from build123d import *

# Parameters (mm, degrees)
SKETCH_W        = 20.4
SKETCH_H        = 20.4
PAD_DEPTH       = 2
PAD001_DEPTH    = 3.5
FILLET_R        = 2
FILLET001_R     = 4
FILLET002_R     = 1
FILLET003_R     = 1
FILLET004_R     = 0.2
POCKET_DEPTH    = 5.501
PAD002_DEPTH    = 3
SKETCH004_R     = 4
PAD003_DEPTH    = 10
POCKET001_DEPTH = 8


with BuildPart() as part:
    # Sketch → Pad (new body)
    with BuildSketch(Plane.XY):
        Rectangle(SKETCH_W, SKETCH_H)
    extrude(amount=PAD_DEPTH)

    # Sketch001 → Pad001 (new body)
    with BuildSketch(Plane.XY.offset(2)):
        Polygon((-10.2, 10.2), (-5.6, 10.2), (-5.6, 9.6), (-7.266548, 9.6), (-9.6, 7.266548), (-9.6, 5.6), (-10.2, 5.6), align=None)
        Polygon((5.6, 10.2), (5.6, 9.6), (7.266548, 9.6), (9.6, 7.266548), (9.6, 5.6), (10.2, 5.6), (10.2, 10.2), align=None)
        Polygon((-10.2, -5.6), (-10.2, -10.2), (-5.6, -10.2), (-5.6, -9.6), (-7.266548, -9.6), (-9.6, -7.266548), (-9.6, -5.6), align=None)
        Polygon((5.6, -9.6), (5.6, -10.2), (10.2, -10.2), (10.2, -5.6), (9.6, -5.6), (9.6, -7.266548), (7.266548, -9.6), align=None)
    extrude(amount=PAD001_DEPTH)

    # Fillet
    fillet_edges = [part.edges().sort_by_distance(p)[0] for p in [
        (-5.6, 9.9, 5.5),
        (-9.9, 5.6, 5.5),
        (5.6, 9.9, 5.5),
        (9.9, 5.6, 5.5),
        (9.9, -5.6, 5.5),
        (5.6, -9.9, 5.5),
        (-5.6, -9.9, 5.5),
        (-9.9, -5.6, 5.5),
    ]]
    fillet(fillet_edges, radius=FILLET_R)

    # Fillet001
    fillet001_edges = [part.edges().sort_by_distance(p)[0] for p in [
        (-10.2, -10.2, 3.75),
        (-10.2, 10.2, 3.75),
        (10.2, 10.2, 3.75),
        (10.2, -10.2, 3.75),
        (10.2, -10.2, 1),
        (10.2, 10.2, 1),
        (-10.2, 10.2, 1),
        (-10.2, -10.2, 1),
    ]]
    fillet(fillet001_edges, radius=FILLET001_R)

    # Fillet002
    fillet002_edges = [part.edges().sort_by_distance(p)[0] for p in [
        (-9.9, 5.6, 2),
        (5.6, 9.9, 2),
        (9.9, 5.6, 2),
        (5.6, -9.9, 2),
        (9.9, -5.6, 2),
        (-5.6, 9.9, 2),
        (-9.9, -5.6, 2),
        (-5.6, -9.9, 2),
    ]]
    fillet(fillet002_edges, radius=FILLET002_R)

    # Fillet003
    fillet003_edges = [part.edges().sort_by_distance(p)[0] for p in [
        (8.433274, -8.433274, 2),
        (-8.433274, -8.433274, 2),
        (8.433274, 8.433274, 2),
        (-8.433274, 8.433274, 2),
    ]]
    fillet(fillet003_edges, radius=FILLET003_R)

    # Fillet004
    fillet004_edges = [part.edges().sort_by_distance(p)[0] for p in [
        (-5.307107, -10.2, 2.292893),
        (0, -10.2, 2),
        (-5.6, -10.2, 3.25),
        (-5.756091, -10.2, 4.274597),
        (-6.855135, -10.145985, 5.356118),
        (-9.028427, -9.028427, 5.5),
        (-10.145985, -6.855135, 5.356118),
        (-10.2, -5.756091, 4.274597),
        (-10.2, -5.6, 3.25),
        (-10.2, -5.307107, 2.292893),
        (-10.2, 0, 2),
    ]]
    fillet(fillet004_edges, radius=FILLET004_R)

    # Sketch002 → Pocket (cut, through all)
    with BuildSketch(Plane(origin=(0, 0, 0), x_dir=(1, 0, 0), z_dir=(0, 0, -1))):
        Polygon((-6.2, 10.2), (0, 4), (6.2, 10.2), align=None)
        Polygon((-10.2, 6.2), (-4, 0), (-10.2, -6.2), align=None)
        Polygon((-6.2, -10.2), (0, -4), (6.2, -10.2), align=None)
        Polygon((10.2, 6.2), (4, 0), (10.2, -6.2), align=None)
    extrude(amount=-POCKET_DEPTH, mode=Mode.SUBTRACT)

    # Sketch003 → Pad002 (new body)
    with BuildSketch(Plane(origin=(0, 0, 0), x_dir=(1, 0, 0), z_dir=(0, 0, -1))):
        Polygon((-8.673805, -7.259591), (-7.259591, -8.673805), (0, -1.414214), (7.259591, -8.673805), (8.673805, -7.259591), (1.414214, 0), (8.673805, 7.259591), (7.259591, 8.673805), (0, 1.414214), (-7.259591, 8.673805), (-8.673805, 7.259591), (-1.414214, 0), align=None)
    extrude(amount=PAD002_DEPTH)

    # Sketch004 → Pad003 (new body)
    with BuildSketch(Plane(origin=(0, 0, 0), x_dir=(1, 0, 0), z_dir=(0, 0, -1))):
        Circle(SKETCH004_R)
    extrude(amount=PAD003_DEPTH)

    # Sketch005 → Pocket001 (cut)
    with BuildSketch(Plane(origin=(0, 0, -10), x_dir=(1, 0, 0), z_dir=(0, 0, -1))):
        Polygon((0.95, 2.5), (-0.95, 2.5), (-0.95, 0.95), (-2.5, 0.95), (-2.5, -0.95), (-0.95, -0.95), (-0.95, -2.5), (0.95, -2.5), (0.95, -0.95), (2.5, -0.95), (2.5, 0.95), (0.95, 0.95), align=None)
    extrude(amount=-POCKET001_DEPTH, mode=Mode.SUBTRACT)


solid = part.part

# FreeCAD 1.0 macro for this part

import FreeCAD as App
import Part
import Sketcher

V = App.Vector
Q = App.Units.Quantity


def edges_at(feature, points):
    """Names of the edges that pass closest to the given points."""
    edges = feature.Shape.Edges
    near = lambda p: min(range(len(edges)), key=lambda i: edges[i].distToShape(Part.Vertex(*p))[0])
    return sorted({f"Edge{near(p) + 1}" for p in points})

doc = App.newDocument("Part")
body = doc.addObject("PartDesign::Body", "Body")

# Sketch on XY plane
sketch1 = doc.addObject("Sketcher::SketchObject", "Sketch")
body.addObject(sketch1)
sketch1.AttachmentSupport = (doc.XY_Plane, [""])
sketch1.MapMode = "FlatFace"
sketch1.addGeometry([
    Part.LineSegment(V(-10, 10, 0), V(-10, -10, 0)),
    Part.LineSegment(V(-10, -10, 0), V(10, -10, 0)),
    Part.LineSegment(V(10, -10, 0), V(10, 10, 0)),
    Part.LineSegment(V(10, 10, 0), V(-10, 10, 0)),
], False)
sketch1.addConstraint([
    Sketcher.Constraint("Coincident", 0, 2, 1, 1),
    Sketcher.Constraint("Coincident", 1, 2, 2, 1),
    Sketcher.Constraint("Coincident", 2, 2, 3, 1),
    Sketcher.Constraint("Coincident", 3, 2, 0, 1),
    Sketcher.Constraint("Vertical", 0),
    Sketcher.Constraint("Horizontal", 1),
    Sketcher.Constraint("Vertical", 2),
    Sketcher.Constraint("Horizontal", 3),
    Sketcher.Constraint("Symmetric", 0, 2, 2, 2, -1, 1),
    Sketcher.Constraint("Equal", 3, 0),
    Sketcher.Constraint("DistanceX", 1, 1, 1, 2, Q("20.4 mm")),
])
pad1 = doc.addObject("PartDesign::Pad", "Pad")
body.addObject(pad1)
pad1.Profile = sketch1
pad1.Length = 2

# Sketch on XY plane
sketch2 = doc.addObject("Sketcher::SketchObject", "Sketch001")
body.addObject(sketch2)
sketch2.AttachmentSupport = (doc.XY_Plane, [""])
sketch2.MapMode = "FlatFace"
sketch2.AttachmentOffset = App.Placement(V(0, 0, 2), App.Rotation())
sketch2.addGeometry([
    Part.LineSegment(V(-5.6, 10.2, 0), V(-10.2, 10.2, 0)),  # 0
    Part.LineSegment(V(-10.2, 10.2, 0), V(-10.2, 5.6, 0)),  # 1
    Part.LineSegment(V(-10.2, 5.6, 0), V(-9.6, 5.6, 0)),  # 2
    Part.LineSegment(V(-9.6, 5.6, 0), V(-9.6, 7.3, 0)),  # 3
    Part.LineSegment(V(-9.6, 7.3, 0), V(-7.3, 9.6, 0)),  # 4
    Part.LineSegment(V(-7.3, 9.6, 0), V(-5.6, 9.6, 0)),  # 5
    Part.LineSegment(V(-5.6, 9.6, 0), V(-5.6, 10.2, 0)),  # 6
    Part.LineSegment(V(5.6, 10.2, 0), V(5.6, 9.6, 0)),  # 7
    Part.LineSegment(V(5.6, 9.6, 0), V(7.3, 9.6, 0)),  # 8
    Part.LineSegment(V(7.3, 9.6, 0), V(9.6, 7.3, 0)),  # 9
    Part.LineSegment(V(9.6, 7.3, 0), V(9.6, 5.6, 0)),  # 10
    Part.LineSegment(V(9.6, 5.6, 0), V(10.2, 5.6, 0)),  # 11
    Part.LineSegment(V(10.2, 5.6, 0), V(10.2, 10.2, 0)),  # 12
    Part.LineSegment(V(10.2, 10.2, 0), V(5.6, 10.2, 0)),  # 13
    Part.LineSegment(V(-10.2, -5.6, 0), V(-10.2, -10.2, 0)),  # 14
    Part.LineSegment(V(-10.2, -10.2, 0), V(-5.6, -10.2, 0)),  # 15
    Part.LineSegment(V(-5.6, -10.2, 0), V(-5.6, -9.6, 0)),  # 16
    Part.LineSegment(V(-5.6, -9.6, 0), V(-7.3, -9.6, 0)),  # 17
    Part.LineSegment(V(-7.3, -9.6, 0), V(-9.6, -7.3, 0)),  # 18
    Part.LineSegment(V(-9.6, -7.3, 0), V(-9.6, -5.6, 0)),  # 19
    Part.LineSegment(V(-9.6, -5.6, 0), V(-10.2, -5.6, 0)),  # 20
    Part.LineSegment(V(5.6, -9.6, 0), V(5.6, -10.2, 0)),  # 21
    Part.LineSegment(V(5.6, -10.2, 0), V(10.2, -10.2, 0)),  # 22
    Part.LineSegment(V(10.2, -10.2, 0), V(10.2, -5.6, 0)),  # 23
    Part.LineSegment(V(10.2, -5.6, 0), V(9.6, -5.6, 0)),  # 24
    Part.LineSegment(V(9.6, -5.6, 0), V(9.6, -7.3, 0)),  # 25
    Part.LineSegment(V(9.6, -7.3, 0), V(7.3, -9.6, 0)),  # 26
    Part.LineSegment(V(7.3, -9.6, 0), V(5.6, -9.6, 0)),  # 27
], False)
sketch2.addConstraint([
    Sketcher.Constraint("Coincident", 0, 2, 1, 1),
    Sketcher.Constraint("Coincident", 1, 2, 2, 1),
    Sketcher.Constraint("Coincident", 2, 2, 3, 1),
    Sketcher.Constraint("Coincident", 3, 2, 4, 1),
    Sketcher.Constraint("Coincident", 4, 2, 5, 1),
    Sketcher.Constraint("Coincident", 5, 2, 6, 1),
    Sketcher.Constraint("Coincident", 6, 2, 0, 1),
    Sketcher.Constraint("Coincident", 7, 2, 8, 1),
    Sketcher.Constraint("Coincident", 8, 2, 9, 1),
    Sketcher.Constraint("Coincident", 9, 2, 10, 1),
    Sketcher.Constraint("Coincident", 10, 2, 11, 1),
    Sketcher.Constraint("Coincident", 11, 2, 12, 1),
    Sketcher.Constraint("Coincident", 12, 2, 13, 1),
    Sketcher.Constraint("Coincident", 13, 2, 7, 1),
    Sketcher.Constraint("Coincident", 14, 2, 15, 1),
    Sketcher.Constraint("Coincident", 15, 2, 16, 1),
    Sketcher.Constraint("Coincident", 16, 2, 17, 1),
    Sketcher.Constraint("Coincident", 17, 2, 18, 1),
    Sketcher.Constraint("Coincident", 18, 2, 19, 1),
    Sketcher.Constraint("Coincident", 19, 2, 20, 1),
    Sketcher.Constraint("Coincident", 20, 2, 14, 1),
    Sketcher.Constraint("Coincident", 21, 2, 22, 1),
    Sketcher.Constraint("Coincident", 22, 2, 23, 1),
    Sketcher.Constraint("Coincident", 23, 2, 24, 1),
    Sketcher.Constraint("Coincident", 24, 2, 25, 1),
    Sketcher.Constraint("Coincident", 25, 2, 26, 1),
    Sketcher.Constraint("Coincident", 26, 2, 27, 1),
    Sketcher.Constraint("Coincident", 27, 2, 21, 1),
    Sketcher.Constraint("Horizontal", 0),
    Sketcher.Constraint("Vertical", 1),
    Sketcher.Constraint("Horizontal", 2),
    Sketcher.Constraint("Vertical", 3),
    Sketcher.Constraint("Horizontal", 5),
    Sketcher.Constraint("Vertical", 6),
    Sketcher.Constraint("Vertical", 7),
    Sketcher.Constraint("Horizontal", 8),
    Sketcher.Constraint("Vertical", 10),
    Sketcher.Constraint("Horizontal", 11),
    Sketcher.Constraint("Vertical", 12),
    Sketcher.Constraint("Horizontal", 13),
    Sketcher.Constraint("Vertical", 14),
    Sketcher.Constraint("Horizontal", 15),
    Sketcher.Constraint("Vertical", 16),
    Sketcher.Constraint("Horizontal", 17),
    Sketcher.Constraint("Vertical", 19),
    Sketcher.Constraint("Horizontal", 20),
    Sketcher.Constraint("Vertical", 21),
    Sketcher.Constraint("Horizontal", 22),
    Sketcher.Constraint("Vertical", 23),
    Sketcher.Constraint("Horizontal", 24),
    Sketcher.Constraint("Vertical", 25),
    Sketcher.Constraint("Horizontal", 27),
    Sketcher.Constraint("Symmetric", 12, 2, 14, 2, -1, 1),
    Sketcher.Constraint("Symmetric", 7, 2, 16, 2, -1, 1),
    Sketcher.Constraint("Symmetric", 9, 2, 18, 2, -1, 1),
    Sketcher.Constraint("Symmetric", 6, 2, 21, 2, -1, 1),
    Sketcher.Constraint("Symmetric", 1, 2, 23, 2, -1, 1),
    Sketcher.Constraint("Symmetric", 3, 2, 25, 2, -1, 1),
    Sketcher.Constraint("Symmetric", 4, 2, 26, 2, -1, 1),
    Sketcher.Constraint("Symmetric", 5, 2, 7, 2, -2),
    Sketcher.Constraint("Symmetric", 3, 2, 9, 2, -2),
    Sketcher.Constraint("Symmetric", 1, 2, 11, 2, -2),
    Sketcher.Constraint("Perpendicular", 4, 9),
    Sketcher.Constraint("Parallel", 9, 18),
    Sketcher.Constraint("Horizontal", 6, 2, 12, 2),
    Sketcher.Constraint("Horizontal", 20, 2, 23, 2),
    Sketcher.Constraint("Vertical", 4, 2, 17, 2),
    Sketcher.Constraint("Equal", 22, 1),
    Sketcher.Constraint("Equal", 27, 3),
    Sketcher.Constraint("DistanceX", 0, 2, 0, 1, Q("4.6 mm")),
    Sketcher.Constraint("DistanceX", 2, 1, 2, 2, Q("0.6 mm")),
    Sketcher.Constraint("Distance", 4, Q("3.299999 mm")),
    Sketcher.Constraint("DistanceX", 0, 2, -1, 1, Q("10.2 mm")),
    Sketcher.Constraint("DistanceY", -1, 1, 0, 2, Q("10.2 mm")),
])
pad2 = doc.addObject("PartDesign::Pad", "Pad001")
body.addObject(pad2)
pad2.Profile = sketch2
pad2.Length = 3.5
doc.recompute()

fillet = doc.addObject("PartDesign::Fillet", "Fillet")
body.addObject(fillet)
fillet.Base = (pad2, edges_at(pad2, [
    (-5.6, 9.9, 5.5),
    (-9.9, 5.6, 5.5),
    (5.6, 9.9, 5.5),
    (9.9, 5.6, 5.5),
    (9.9, -5.6, 5.5),
    (5.6, -9.9, 5.5),
    (-5.6, -9.9, 5.5),
    (-9.9, -5.6, 5.5),
]))
fillet.Radius = 2
doc.recompute()

fillet2 = doc.addObject("PartDesign::Fillet", "Fillet001")
body.addObject(fillet2)
fillet2.Base = (fillet, edges_at(fillet, [
    (-10.2, -10.2, 2.75),
    (-10.2, 10.2, 2.75),
    (10.2, 10.2, 2.75),
    (10.2, -10.2, 2.75),
    (10.2, -10.2, 2.75),
    (10.2, 10.2, 2.75),
    (-10.2, 10.2, 2.75),
    (-10.2, -10.2, 2.75),
]))
fillet2.Radius = 4
doc.recompute()

fillet3 = doc.addObject("PartDesign::Fillet", "Fillet002")
body.addObject(fillet3)
fillet3.Base = (fillet2, edges_at(fillet2, [
    (-9.9, 5.6, 2),
    (5.6, 9.9, 2),
    (9.9, 5.6, 2),
    (5.6, -9.9, 2),
    (9.9, -5.6, 2),
    (-5.6, 9.9, 2),
    (-9.9, -5.6, 2),
    (-5.6, -9.9, 2),
]))
fillet3.Radius = 1
doc.recompute()

fillet4 = doc.addObject("PartDesign::Fillet", "Fillet003")
body.addObject(fillet4)
fillet4.Base = (fillet3, edges_at(fillet3, [
    (8.433, -8.433, 2),
    (-8.433, -8.433, 2),
    (8.433, 8.433, 2),
    (-8.433, 8.433, 2),
]))
fillet4.Radius = 1
doc.recompute()

fillet5 = doc.addObject("PartDesign::Fillet", "Fillet004")
body.addObject(fillet5)
fillet5.Base = (fillet4, edges_at(fillet4, [
    (-5.307, -10.2, 2.293),
    (0, -10.2, 2),
    (-5.6, -10.2, 3.25),
    (-5.756, -10.2, 4.275),
    (-6.855, -10.146, 5.356),
    (-9.028, -9.028, 5.5),
    (-10.146, -6.855, 5.356),
    (-10.2, -5.756, 4.275),
    (-10.2, -5.6, 3.25),
    (-10.2, -5.307, 2.293),
    (-10.2, 0, 2),
]))
fillet5.Radius = 0.2

# Sketch on XY plane
sketch3 = doc.addObject("Sketcher::SketchObject", "Sketch002")
body.addObject(sketch3)
sketch3.AttachmentSupport = (doc.XY_Plane, [""])
sketch3.MapMode = "FlatFace"
sketch3.addGeometry([
    Part.LineSegment(V(-6, -10, 0), V(0, -4, 0)),  # 0
    Part.LineSegment(V(0, -4, 0), V(6, -10, 0)),  # 1
    Part.LineSegment(V(6, -10, 0), V(-6, -10, 0)),  # 2
    Part.LineSegment(V(-4, 0, 0), V(-10, -6, 0)),  # 3
    Part.LineSegment(V(-10, -6, 0), V(-10, 6, 0)),  # 4
    Part.LineSegment(V(-10, 6, 0), V(-4, 0, 0)),  # 5
    Part.LineSegment(V(0, 4, 0), V(-6, 10, 0)),  # 6
    Part.LineSegment(V(-6, 10, 0), V(6, 10, 0)),  # 7
    Part.LineSegment(V(6, 10, 0), V(0, 4, 0)),  # 8
    Part.LineSegment(V(10, -6, 0), V(4, 0, 0)),  # 9
    Part.LineSegment(V(4, 0, 0), V(10, 6, 0)),  # 10
    Part.LineSegment(V(10, 6, 0), V(10, -6, 0)),  # 11
], False)
sketch3.addConstraint([
    Sketcher.Constraint("Coincident", 0, 2, 1, 1),
    Sketcher.Constraint("Coincident", 1, 2, 2, 1),
    Sketcher.Constraint("Coincident", 2, 2, 0, 1),
    Sketcher.Constraint("Coincident", 3, 2, 4, 1),
    Sketcher.Constraint("Coincident", 4, 2, 5, 1),
    Sketcher.Constraint("Coincident", 5, 2, 3, 1),
    Sketcher.Constraint("Coincident", 6, 2, 7, 1),
    Sketcher.Constraint("Coincident", 7, 2, 8, 1),
    Sketcher.Constraint("Coincident", 8, 2, 6, 1),
    Sketcher.Constraint("Coincident", 9, 2, 10, 1),
    Sketcher.Constraint("Coincident", 10, 2, 11, 1),
    Sketcher.Constraint("Coincident", 11, 2, 9, 1),
    Sketcher.Constraint("Horizontal", 2),
    Sketcher.Constraint("Vertical", 4),
    Sketcher.Constraint("Horizontal", 7),
    Sketcher.Constraint("Vertical", 11),
    Sketcher.Constraint("Symmetric", 1, 2, 6, 2, -1, 1),
    Sketcher.Constraint("Symmetric", 0, 2, 8, 2, -1, 1),
    Sketcher.Constraint("Symmetric", 5, 2, 9, 2, -1, 1),
    Sketcher.Constraint("Symmetric", 3, 2, 10, 2, -1, 1),
    Sketcher.Constraint("PointOnObject", 0, 2, -2),
    Sketcher.Constraint("PointOnObject", 5, 2, -1),
    Sketcher.Constraint("Perpendicular", 0, 1),
    Sketcher.Constraint("Perpendicular", 1, 3),
    Sketcher.Constraint("Perpendicular", 3, 5),
    Sketcher.Constraint("Perpendicular", 6, 8),
    Sketcher.Constraint("Perpendicular", 8, 9),
    Sketcher.Constraint("Horizontal", 4, 2, 10, 2),
    Sketcher.Constraint("Equal", 7, 4),
    Sketcher.Constraint("DistanceX", 2, 2, 2, 1, Q("12.4 mm")),
    Sketcher.Constraint("DistanceY", 0, 2, -1, 1, Q("4 mm")),
    Sketcher.Constraint("DistanceX", 5, 2, -1, 1, Q("4 mm")),
])
pocket1 = doc.addObject("PartDesign::Pocket", "Pocket")
body.addObject(pocket1)
pocket1.Profile = sketch3
pocket1.Type = "ThroughAll"
pocket1.Reversed = True

# Sketch on XY plane
sketch4 = doc.addObject("Sketcher::SketchObject", "Sketch003")
body.addObject(sketch4)
sketch4.AttachmentSupport = (doc.XY_Plane, [""])
sketch4.MapMode = "FlatFace"
sketch4.addGeometry([
    Part.LineSegment(V(-8.7, 7.3, 0), V(-7.3, 8.7, 0)),  # 0
    Part.LineSegment(V(-7.3, 8.7, 0), V(0, 1.4, 0)),  # 1
    Part.LineSegment(V(0, 1.4, 0), V(7.3, 8.7, 0)),  # 2
    Part.LineSegment(V(7.3, 8.7, 0), V(8.7, 7.3, 0)),  # 3
    Part.LineSegment(V(8.7, 7.3, 0), V(1.4, 0, 0)),  # 4
    Part.LineSegment(V(1.4, 0, 0), V(8.7, -7.3, 0)),  # 5
    Part.LineSegment(V(8.7, -7.3, 0), V(7.3, -8.7, 0)),  # 6
    Part.LineSegment(V(7.3, -8.7, 0), V(0, -1.4, 0)),  # 7
    Part.LineSegment(V(0, -1.4, 0), V(-7.3, -8.7, 0)),  # 8
    Part.LineSegment(V(-7.3, -8.7, 0), V(-8.7, -7.3, 0)),  # 9
    Part.LineSegment(V(-8.7, -7.3, 0), V(-1.4, 0, 0)),  # 10
    Part.LineSegment(V(-1.4, 0, 0), V(-8.7, 7.3, 0)),  # 11
], False)
sketch4.addConstraint([
    Sketcher.Constraint("Coincident", 0, 2, 1, 1),
    Sketcher.Constraint("Coincident", 1, 2, 2, 1),
    Sketcher.Constraint("Coincident", 2, 2, 3, 1),
    Sketcher.Constraint("Coincident", 3, 2, 4, 1),
    Sketcher.Constraint("Coincident", 4, 2, 5, 1),
    Sketcher.Constraint("Coincident", 5, 2, 6, 1),
    Sketcher.Constraint("Coincident", 6, 2, 7, 1),
    Sketcher.Constraint("Coincident", 7, 2, 8, 1),
    Sketcher.Constraint("Coincident", 8, 2, 9, 1),
    Sketcher.Constraint("Coincident", 9, 2, 10, 1),
    Sketcher.Constraint("Coincident", 10, 2, 11, 1),
    Sketcher.Constraint("Coincident", 11, 2, 0, 1),
    Sketcher.Constraint("Symmetric", 0, 2, 6, 2, -1, 1),
    Sketcher.Constraint("Symmetric", 1, 2, 7, 2, -1, 1),
    Sketcher.Constraint("Symmetric", 2, 2, 8, 2, -1, 1),
    Sketcher.Constraint("Symmetric", 3, 2, 9, 2, -1, 1),
    Sketcher.Constraint("Symmetric", 4, 2, 10, 2, -1, 1),
    Sketcher.Constraint("Symmetric", 5, 2, 11, 2, -1, 1),
    Sketcher.Constraint("Symmetric", 0, 2, 2, 2, -2),
    Sketcher.Constraint("Symmetric", 5, 2, 9, 2, -2),
    Sketcher.Constraint("PointOnObject", 1, 2, -2),
    Sketcher.Constraint("PointOnObject", 4, 2, -1),
    Sketcher.Constraint("Perpendicular", 0, 1),
    Sketcher.Constraint("Perpendicular", 1, 2),
    Sketcher.Constraint("Perpendicular", 3, 4),
    Sketcher.Constraint("Equal", 2, 4),
    Sketcher.Constraint("Distance", 0, Q("2.000001 mm")),
    Sketcher.Constraint("DistanceX", 0, 2, -1, 1, Q("7.259591 mm")),
])
pad3 = doc.addObject("PartDesign::Pad", "Pad002")
body.addObject(pad3)
pad3.Profile = sketch4
pad3.Length = 3
pad3.Reversed = True

# Sketch on XY plane
sketch5 = doc.addObject("Sketcher::SketchObject", "Sketch004")
body.addObject(sketch5)
sketch5.AttachmentSupport = (doc.XY_Plane, [""])
sketch5.MapMode = "FlatFace"
sketch5.addGeometry(Part.Circle(V(0, 0, 0), V(0, 0, 1), 4), False)
sketch5.addConstraint([
    Sketcher.Constraint("Coincident", 0, 3, -1, 1),
    Sketcher.Constraint("Diameter", 0, Q("8 mm")),
])
pad4 = doc.addObject("PartDesign::Pad", "Pad003")
body.addObject(pad4)
pad4.Profile = sketch5
pad4.Length = 10
pad4.Reversed = True

# Sketch on XY plane
sketch6 = doc.addObject("Sketcher::SketchObject", "Sketch005")
body.addObject(sketch6)
sketch6.AttachmentSupport = (doc.XY_Plane, [""])
sketch6.MapMode = "FlatFace"
sketch6.AttachmentOffset = App.Placement(V(0, 0, -10), App.Rotation())
sketch6.addGeometry([
    Part.LineSegment(V(0.9, -2.5, 0), V(-0.9, -2.5, 0)),  # 0
    Part.LineSegment(V(-0.9, -2.5, 0), V(-0.9, -0.9, 0)),  # 1
    Part.LineSegment(V(-0.9, -0.9, 0), V(-2.5, -0.9, 0)),  # 2
    Part.LineSegment(V(-2.5, -0.9, 0), V(-2.5, 0.9, 0)),  # 3
    Part.LineSegment(V(-2.5, 0.9, 0), V(-0.9, 0.9, 0)),  # 4
    Part.LineSegment(V(-0.9, 0.9, 0), V(-0.9, 2.5, 0)),  # 5
    Part.LineSegment(V(-0.9, 2.5, 0), V(0.9, 2.5, 0)),  # 6
    Part.LineSegment(V(0.9, 2.5, 0), V(0.9, 0.9, 0)),  # 7
    Part.LineSegment(V(0.9, 0.9, 0), V(2.5, 0.9, 0)),  # 8
    Part.LineSegment(V(2.5, 0.9, 0), V(2.5, -0.9, 0)),  # 9
    Part.LineSegment(V(2.5, -0.9, 0), V(0.9, -0.9, 0)),  # 10
    Part.LineSegment(V(0.9, -0.9, 0), V(0.9, -2.5, 0)),  # 11
], False)
sketch6.addConstraint([
    Sketcher.Constraint("Coincident", 0, 2, 1, 1),
    Sketcher.Constraint("Coincident", 1, 2, 2, 1),
    Sketcher.Constraint("Coincident", 2, 2, 3, 1),
    Sketcher.Constraint("Coincident", 3, 2, 4, 1),
    Sketcher.Constraint("Coincident", 4, 2, 5, 1),
    Sketcher.Constraint("Coincident", 5, 2, 6, 1),
    Sketcher.Constraint("Coincident", 6, 2, 7, 1),
    Sketcher.Constraint("Coincident", 7, 2, 8, 1),
    Sketcher.Constraint("Coincident", 8, 2, 9, 1),
    Sketcher.Constraint("Coincident", 9, 2, 10, 1),
    Sketcher.Constraint("Coincident", 10, 2, 11, 1),
    Sketcher.Constraint("Coincident", 11, 2, 0, 1),
    Sketcher.Constraint("Horizontal", 0),
    Sketcher.Constraint("Vertical", 1),
    Sketcher.Constraint("Horizontal", 2),
    Sketcher.Constraint("Vertical", 3),
    Sketcher.Constraint("Horizontal", 4),
    Sketcher.Constraint("Vertical", 5),
    Sketcher.Constraint("Horizontal", 6),
    Sketcher.Constraint("Vertical", 7),
    Sketcher.Constraint("Horizontal", 8),
    Sketcher.Constraint("Vertical", 9),
    Sketcher.Constraint("Horizontal", 10),
    Sketcher.Constraint("Vertical", 11),
    Sketcher.Constraint("Symmetric", 0, 2, 6, 2, -1, 1),
    Sketcher.Constraint("Symmetric", 2, 2, 8, 2, -1, 1),
    Sketcher.Constraint("Symmetric", 4, 2, 10, 2, -1, 1),
    Sketcher.Constraint("Symmetric", 4, 2, 7, 2, -2),
    Sketcher.Constraint("Equal", 10, 1),
    Sketcher.Constraint("Equal", 6, 3),
    Sketcher.Constraint("DistanceX", 0, 2, 0, 1, Q("1.9 mm")),
    Sketcher.Constraint("DistanceY", 0, 2, 5, 2, Q("5 mm")),
])
pocket2 = doc.addObject("PartDesign::Pocket", "Pocket001")
body.addObject(pocket2)
pocket2.Profile = sketch6
pocket2.Length = 8
pocket2.Reversed = True

doc.recompute()
